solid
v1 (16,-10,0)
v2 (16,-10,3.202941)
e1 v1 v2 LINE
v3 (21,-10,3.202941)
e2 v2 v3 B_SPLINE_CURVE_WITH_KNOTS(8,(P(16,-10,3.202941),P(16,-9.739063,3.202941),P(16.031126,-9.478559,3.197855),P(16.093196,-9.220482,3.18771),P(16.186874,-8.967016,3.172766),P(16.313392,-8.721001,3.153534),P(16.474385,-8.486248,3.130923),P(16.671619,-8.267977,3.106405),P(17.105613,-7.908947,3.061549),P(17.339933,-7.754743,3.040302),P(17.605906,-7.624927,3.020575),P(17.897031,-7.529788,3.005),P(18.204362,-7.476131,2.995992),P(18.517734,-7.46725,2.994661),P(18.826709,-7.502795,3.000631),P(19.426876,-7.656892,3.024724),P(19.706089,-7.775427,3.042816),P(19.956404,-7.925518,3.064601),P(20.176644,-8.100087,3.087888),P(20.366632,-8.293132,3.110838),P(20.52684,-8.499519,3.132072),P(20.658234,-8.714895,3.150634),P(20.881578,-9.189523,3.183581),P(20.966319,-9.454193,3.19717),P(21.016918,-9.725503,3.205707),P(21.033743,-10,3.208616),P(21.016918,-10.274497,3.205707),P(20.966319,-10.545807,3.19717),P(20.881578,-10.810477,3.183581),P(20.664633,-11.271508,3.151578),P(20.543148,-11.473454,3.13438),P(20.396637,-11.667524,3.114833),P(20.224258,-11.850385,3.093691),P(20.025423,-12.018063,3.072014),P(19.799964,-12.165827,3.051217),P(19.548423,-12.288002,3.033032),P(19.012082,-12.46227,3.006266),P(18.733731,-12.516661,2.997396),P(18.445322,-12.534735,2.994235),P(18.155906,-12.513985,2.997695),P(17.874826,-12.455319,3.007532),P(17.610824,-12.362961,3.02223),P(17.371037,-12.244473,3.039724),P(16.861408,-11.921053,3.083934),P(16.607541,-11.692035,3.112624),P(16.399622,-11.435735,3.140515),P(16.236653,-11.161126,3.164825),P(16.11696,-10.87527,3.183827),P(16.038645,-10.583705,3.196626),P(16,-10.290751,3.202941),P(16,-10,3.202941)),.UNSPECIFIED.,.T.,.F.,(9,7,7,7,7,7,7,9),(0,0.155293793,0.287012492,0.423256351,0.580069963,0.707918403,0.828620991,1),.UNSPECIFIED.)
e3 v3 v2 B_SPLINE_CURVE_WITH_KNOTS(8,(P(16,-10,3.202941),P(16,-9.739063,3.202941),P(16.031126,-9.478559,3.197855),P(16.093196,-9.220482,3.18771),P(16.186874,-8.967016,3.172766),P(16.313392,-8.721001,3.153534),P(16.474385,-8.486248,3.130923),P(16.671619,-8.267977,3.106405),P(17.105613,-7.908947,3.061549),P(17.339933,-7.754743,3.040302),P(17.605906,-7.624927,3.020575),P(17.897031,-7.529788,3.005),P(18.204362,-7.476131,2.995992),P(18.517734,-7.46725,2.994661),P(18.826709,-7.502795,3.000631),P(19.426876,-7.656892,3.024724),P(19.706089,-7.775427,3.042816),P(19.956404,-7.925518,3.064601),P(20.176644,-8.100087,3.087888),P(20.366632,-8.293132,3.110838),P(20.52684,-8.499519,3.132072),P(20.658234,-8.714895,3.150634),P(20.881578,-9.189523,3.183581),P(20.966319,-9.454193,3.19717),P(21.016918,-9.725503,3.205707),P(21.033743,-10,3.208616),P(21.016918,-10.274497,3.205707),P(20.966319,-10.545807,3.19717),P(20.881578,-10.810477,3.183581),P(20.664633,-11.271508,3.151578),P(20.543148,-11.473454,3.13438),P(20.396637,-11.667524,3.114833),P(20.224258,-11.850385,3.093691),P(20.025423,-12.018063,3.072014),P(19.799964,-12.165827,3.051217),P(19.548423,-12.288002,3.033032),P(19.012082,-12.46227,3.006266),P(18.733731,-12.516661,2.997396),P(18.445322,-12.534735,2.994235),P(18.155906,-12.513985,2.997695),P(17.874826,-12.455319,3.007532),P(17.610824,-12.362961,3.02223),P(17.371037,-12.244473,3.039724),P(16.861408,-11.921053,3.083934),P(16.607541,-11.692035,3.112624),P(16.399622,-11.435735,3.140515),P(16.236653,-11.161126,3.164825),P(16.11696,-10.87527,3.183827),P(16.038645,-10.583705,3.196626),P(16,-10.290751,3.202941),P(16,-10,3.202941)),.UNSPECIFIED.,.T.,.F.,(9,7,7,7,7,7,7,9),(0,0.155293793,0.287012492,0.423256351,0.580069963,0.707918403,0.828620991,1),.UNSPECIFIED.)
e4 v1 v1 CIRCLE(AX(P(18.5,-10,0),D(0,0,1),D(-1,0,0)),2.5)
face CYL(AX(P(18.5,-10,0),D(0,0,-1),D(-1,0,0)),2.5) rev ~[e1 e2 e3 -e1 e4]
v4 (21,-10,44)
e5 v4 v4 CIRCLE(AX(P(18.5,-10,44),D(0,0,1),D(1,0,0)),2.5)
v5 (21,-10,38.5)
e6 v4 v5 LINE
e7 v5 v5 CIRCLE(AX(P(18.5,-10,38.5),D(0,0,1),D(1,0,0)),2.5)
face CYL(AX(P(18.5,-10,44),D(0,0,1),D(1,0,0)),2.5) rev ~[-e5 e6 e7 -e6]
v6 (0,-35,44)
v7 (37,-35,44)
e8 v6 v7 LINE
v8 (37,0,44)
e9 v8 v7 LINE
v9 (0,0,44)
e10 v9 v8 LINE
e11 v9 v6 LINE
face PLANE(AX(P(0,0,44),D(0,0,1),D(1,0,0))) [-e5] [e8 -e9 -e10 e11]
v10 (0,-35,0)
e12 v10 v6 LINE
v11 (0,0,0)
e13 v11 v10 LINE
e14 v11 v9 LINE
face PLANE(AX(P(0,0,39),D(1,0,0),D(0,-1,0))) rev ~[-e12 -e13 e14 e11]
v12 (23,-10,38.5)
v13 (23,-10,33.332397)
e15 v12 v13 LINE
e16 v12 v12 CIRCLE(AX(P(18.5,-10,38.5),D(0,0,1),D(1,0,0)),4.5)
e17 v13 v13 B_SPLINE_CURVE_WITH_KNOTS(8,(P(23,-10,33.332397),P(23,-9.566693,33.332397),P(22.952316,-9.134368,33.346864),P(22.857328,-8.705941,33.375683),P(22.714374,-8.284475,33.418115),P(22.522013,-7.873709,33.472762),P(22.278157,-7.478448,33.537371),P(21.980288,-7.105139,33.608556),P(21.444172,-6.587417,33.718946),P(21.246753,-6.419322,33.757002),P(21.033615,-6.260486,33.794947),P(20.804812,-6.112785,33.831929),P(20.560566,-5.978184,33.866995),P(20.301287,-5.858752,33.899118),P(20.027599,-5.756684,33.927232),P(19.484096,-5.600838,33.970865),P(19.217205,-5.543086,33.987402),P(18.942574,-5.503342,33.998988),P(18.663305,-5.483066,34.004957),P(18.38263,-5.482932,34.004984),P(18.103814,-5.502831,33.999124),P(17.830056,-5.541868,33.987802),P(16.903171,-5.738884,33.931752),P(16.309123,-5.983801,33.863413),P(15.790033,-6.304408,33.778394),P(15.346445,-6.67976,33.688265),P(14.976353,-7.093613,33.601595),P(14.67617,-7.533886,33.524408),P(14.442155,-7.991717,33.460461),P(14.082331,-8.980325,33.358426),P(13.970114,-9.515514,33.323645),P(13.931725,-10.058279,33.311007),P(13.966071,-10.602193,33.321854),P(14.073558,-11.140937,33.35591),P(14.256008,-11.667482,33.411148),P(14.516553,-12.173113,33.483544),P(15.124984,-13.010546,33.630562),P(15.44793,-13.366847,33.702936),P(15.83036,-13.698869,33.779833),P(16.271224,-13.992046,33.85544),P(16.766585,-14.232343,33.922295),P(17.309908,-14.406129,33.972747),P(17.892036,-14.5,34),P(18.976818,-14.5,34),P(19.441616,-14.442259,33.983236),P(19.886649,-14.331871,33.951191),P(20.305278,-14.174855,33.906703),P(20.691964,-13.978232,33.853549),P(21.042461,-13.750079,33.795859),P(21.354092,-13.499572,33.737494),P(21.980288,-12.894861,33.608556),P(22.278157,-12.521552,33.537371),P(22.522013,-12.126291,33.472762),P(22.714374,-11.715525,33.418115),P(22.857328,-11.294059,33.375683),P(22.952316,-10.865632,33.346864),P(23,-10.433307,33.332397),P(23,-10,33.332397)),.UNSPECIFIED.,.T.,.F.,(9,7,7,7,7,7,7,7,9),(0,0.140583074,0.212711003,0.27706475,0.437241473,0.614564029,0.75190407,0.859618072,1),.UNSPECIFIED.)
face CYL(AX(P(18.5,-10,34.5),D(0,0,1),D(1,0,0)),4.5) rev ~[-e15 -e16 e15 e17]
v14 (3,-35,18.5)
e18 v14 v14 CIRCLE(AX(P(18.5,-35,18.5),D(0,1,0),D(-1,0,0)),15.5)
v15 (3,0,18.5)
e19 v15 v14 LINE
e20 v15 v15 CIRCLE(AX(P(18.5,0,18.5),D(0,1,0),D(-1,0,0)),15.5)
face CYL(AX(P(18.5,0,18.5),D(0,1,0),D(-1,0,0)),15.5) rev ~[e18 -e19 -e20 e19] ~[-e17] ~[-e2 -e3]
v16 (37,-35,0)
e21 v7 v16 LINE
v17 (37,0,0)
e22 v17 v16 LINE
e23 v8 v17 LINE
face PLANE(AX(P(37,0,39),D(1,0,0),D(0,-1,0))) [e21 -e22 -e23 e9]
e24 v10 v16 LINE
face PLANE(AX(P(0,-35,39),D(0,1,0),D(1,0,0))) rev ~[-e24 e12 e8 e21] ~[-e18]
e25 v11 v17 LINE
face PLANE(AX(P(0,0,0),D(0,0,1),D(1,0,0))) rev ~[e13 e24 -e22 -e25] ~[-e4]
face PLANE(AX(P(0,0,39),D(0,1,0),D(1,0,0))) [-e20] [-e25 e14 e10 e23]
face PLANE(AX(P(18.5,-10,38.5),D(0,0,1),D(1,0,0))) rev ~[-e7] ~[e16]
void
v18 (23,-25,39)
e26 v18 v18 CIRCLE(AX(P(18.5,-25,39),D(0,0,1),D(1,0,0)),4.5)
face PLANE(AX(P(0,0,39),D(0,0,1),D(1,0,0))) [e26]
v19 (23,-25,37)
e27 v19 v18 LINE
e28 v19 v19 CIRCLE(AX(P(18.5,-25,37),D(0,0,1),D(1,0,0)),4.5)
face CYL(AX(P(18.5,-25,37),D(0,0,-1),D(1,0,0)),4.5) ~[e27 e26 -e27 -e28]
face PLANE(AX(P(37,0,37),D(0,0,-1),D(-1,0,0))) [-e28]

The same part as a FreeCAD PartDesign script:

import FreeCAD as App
import Part
import Sketcher
Q = App.Units.Quantity

doc = App.newDocument("Part")
body = doc.addObject("PartDesign::Body", "Body")

# Sketch on XZ plane
sketch1 = body.newObject("Sketcher::SketchObject", "Sketch")
sketch1.AttachmentSupport = (doc.getObject("XZ_Plane"), [""])
sketch1.MapMode = "FlatFace"
sketch1.addGeometry([
    Part.LineSegment(App.Vector(37, 0, 0), App.Vector(0, 0, 0)),  # 0
    Part.LineSegment(App.Vector(0, 0, 0), App.Vector(0, 37, 0)),  # 1
    Part.LineSegment(App.Vector(0, 37, 0), App.Vector(37, 37, 0)),  # 2
    Part.LineSegment(App.Vector(37, 37, 0), App.Vector(37, 0, 0)),  # 3
    Part.Circle(App.Vector(18.5, 18.5, 0), App.Vector(0, 0, 1), 15.5),  # 4
], False)
sketch1.addConstraint([
    Sketcher.Constraint("Coincident", 0, 2, 1, 1),
    Sketcher.Constraint("Coincident", 1, 2, 2, 1),
    Sketcher.Constraint("Coincident", 2, 2, 3, 1),
    Sketcher.Constraint("Coincident", 3, 2, 0, 1),
    Sketcher.Constraint("Horizontal", 0),
    Sketcher.Constraint("Vertical", 1),
    Sketcher.Constraint("Horizontal", 2),
    Sketcher.Constraint("Vertical", 3),
    Sketcher.Constraint("Coincident", 0, 2, -1, 1),
    Sketcher.Constraint("Equal", 2, 1),
    Sketcher.Constraint("Diameter", 4, Q("31 mm")),
    Sketcher.Constraint("DistanceX", 0, 2, 0, 1, Q("37 mm")),
    Sketcher.Constraint("DistanceX", -1, 1, 4, 3, Q("18.5 mm")),
    Sketcher.Constraint("DistanceY", -1, 1, 4, 3, Q("18.5 mm")),
])
pad1 = body.newObject("PartDesign::Pad", "Pad")
pad1.Profile = sketch1
pad1.Length = 35

# Sketch on XY plane
sketch2 = body.newObject("Sketcher::SketchObject", "Sketch001")
sketch2.AttachmentSupport = (doc.getObject("XY_Plane"), [""])
sketch2.MapMode = "FlatFace"
sketch2.AttachmentOffset = App.Placement(App.Vector(0, 0, 37), App.Rotation())
sketch2.addGeometry(Part.Circle(App.Vector(18.5, -10, 0), App.Vector(0, 0, 1), 4.5), False)
sketch2.addConstraint([
    Sketcher.Constraint("Diameter", 0, Q("9 mm")),
    Sketcher.Constraint("DistanceX", -1, 1, 0, 3, Q("18.5 mm")),
    Sketcher.Constraint("DistanceY", 0, 3, -1, 1, Q("10 mm")),
])
pocket1 = body.newObject("PartDesign::Pocket", "Pocket")
pocket1.Profile = sketch2
pocket1.Length = 5
pocket1.Midplane = True

# Sketch on XY plane
sketch3 = body.newObject("Sketcher::SketchObject", "Sketch002")
sketch3.AttachmentSupport = (doc.getObject("XY_Plane"), [""])
sketch3.MapMode = "FlatFace"
sketch3.addGeometry(Part.Circle(App.Vector(18.5, -10, 0), App.Vector(0, 0, 1), 2.5), False)
sketch3.addConstraint([
    Sketcher.Constraint("Diameter", 0, Q("5 mm")),
    Sketcher.Constraint("DistanceY", 0, 3, -1, 1, Q("10 mm")),
    Sketcher.Constraint("DistanceX", -1, 1, 0, 3, Q("18.5 mm")),
])
pocket2 = body.newObject("PartDesign::Pocket", "Pocket001")
pocket2.Profile = sketch3
pocket2.Length = 5
pocket2.Reversed = True

# Sketch on XY plane
sketch4 = body.newObject("Sketcher::SketchObject", "Sketch003")
sketch4.AttachmentSupport = (doc.getObject("XY_Plane"), [""])
sketch4.MapMode = "FlatFace"
sketch4.AttachmentOffset = App.Placement(App.Vector(0, 0, 37), App.Rotation())
sketch4.addGeometry([
    Part.LineSegment(App.Vector(37, -35, 0), App.Vector(37, 0, 0)),  # 0
    Part.LineSegment(App.Vector(37, 0, 0), App.Vector(0, 0, 0)),  # 1
    Part.LineSegment(App.Vector(0, 0, 0), App.Vector(0, -35, 0)),  # 2
    Part.LineSegment(App.Vector(0, -35, 0), App.Vector(37, -35, 0)),  # 3
    Part.Circle(App.Vector(18.5, -25, 0), App.Vector(0, 0, 1), 4.5),  # 4
], False)
sketch4.addConstraint([
    Sketcher.Constraint("Coincident", 0, 2, 1, 1),
    Sketcher.Constraint("Coincident", 1, 2, 2, 1),
    Sketcher.Constraint("Coincident", 2, 2, 3, 1),
    Sketcher.Constraint("Coincident", 3, 2, 0, 1),
    Sketcher.Constraint("Vertical", 0),
    Sketcher.Constraint("Horizontal", 1),
    Sketcher.Constraint("Vertical", 2),
    Sketcher.Constraint("Horizontal", 3),
    Sketcher.Constraint("Coincident", 1, 2, -1, 1),
    Sketcher.Constraint("Diameter", 4, Q("9 mm")),
    Sketcher.Constraint("DistanceY", 2, 2, 4, 3, Q("10 mm")),
    Sketcher.Constraint("DistanceX", -1, 1, 4, 3, Q("18.5 mm")),
    Sketcher.Constraint("DistanceX", 4, 3, 0, 2, Q("18.5 mm")),
    Sketcher.Constraint("DistanceY", 0, 1, 0, 2, Q("35 mm")),
])
pad2 = body.newObject("PartDesign::Pad", "Pad001")
pad2.Profile = sketch4
pad2.Length = 2

# Sketch on XY plane
sketch5 = body.newObject("Sketcher::SketchObject", "Sketch004")
sketch5.AttachmentSupport = (doc.getObject("XY_Plane"), [""])
sketch5.MapMode = "FlatFace"
sketch5.AttachmentOffset = App.Placement(App.Vector(0, 0, 39), App.Rotation())
sketch5.addGeometry([
    Part.LineSegment(App.Vector(37, 0, 0), App.Vector(0, 0, 0)),
    Part.LineSegment(App.Vector(0, 0, 0), App.Vector(0, -35, 0)),
    Part.LineSegment(App.Vector(0, -35, 0), App.Vector(37, -35, 0)),
    Part.LineSegment(App.Vector(37, -35, 0), App.Vector(37, 0, 0)),
], False)
sketch5.addConstraint([
    Sketcher.Constraint("Coincident", 0, 2, 1, 1),
    Sketcher.Constraint("Coincident", 1, 2, 2, 1),
    Sketcher.Constraint("Coincident", 2, 2, 3, 1),
    Sketcher.Constraint("Coincident", 3, 2, 0, 1),
    Sketcher.Constraint("Horizontal", 0),
    Sketcher.Constraint("Vertical", 1),
    Sketcher.Constraint("Horizontal", 2),
    Sketcher.Constraint("Vertical", 3),
    Sketcher.Constraint("Coincident", 0, 2, -1, 1),
    Sketcher.Constraint("DistanceX", 0, 2, 0, 1, Q("37 mm")),
    Sketcher.Constraint("DistanceY", 1, 2, 1, 1, Q("35 mm")),
])
pad3 = body.newObject("PartDesign::Pad", "Pad002")
pad3.Profile = sketch5
pad3.Length = 5

# Sketch on XY plane
sketch6 = body.newObject("Sketcher::SketchObject", "Sketch005")
sketch6.AttachmentSupport = (doc.getObject("XY_Plane"), [""])
sketch6.MapMode = "FlatFace"
sketch6.AttachmentOffset = App.Placement(App.Vector(0, 0, 44), App.Rotation())
sketch6.addGeometry(Part.Circle(App.Vector(18.5, -10, 0), App.Vector(0, 0, 1), 2.5), False)
sketch6.addConstraint([
    Sketcher.Constraint("Diameter", 0, Q("5 mm")),
    Sketcher.Constraint("DistanceY", 0, 3, -1, 1, Q("10 mm")),
    Sketcher.Constraint("DistanceX", -1, 1, 0, 3, Q("18.5 mm")),
])
pocket3 = body.newObject("PartDesign::Pocket", "Pocket002")
pocket3.Profile = sketch6
pocket3.Type = "ThroughAll"

# Sketch on XY plane
sketch7 = body.newObject("Sketcher::SketchObject", "Sketch006")
sketch7.AttachmentSupport = (doc.getObject("XY_Plane"), [""])
sketch7.MapMode = "FlatFace"
sketch7.AttachmentOffset = App.Placement(App.Vector(0, 0, 34.5), App.Rotation())
sketch7.addGeometry([
    Part.Circle(App.Vector(18.5, -10, 0), App.Vector(0, 0, 1), 4.5),
    Part.Circle(App.Vector(18.5, -10, 0), App.Vector(0, 0, 1), 2.5),
], False)
sketch7.addConstraint([
    Sketcher.Constraint("Coincident", 1, 3, 0, 3),
    Sketcher.Constraint("Diameter", 0, Q("9 mm")),
    Sketcher.Constraint("Diameter", 1, Q("5 mm")),
    Sketcher.Constraint("DistanceY", 0, 3, -1, 1, Q("10 mm")),
    Sketcher.Constraint("DistanceX", -1, 1, 0, 3, Q("18.5 mm")),
])
pocket4 = body.newObject("PartDesign::Pocket", "Pocket003")
pocket4.Profile = sketch7
pocket4.Length = 8
pocket4.Midplane = True

doc.recompute()
